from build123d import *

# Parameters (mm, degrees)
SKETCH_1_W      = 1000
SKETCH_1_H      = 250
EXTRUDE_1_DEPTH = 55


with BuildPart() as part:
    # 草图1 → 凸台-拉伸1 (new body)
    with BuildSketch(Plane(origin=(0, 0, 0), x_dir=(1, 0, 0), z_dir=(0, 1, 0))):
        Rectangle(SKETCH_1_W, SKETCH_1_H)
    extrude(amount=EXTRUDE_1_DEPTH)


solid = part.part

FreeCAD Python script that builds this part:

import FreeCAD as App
import Part
import Sketcher


def add_polygon(sketch, points):
    """Adds a closed chain of lines whose ends are joined by coincident constraints."""
    first, n = sketch.GeometryCount, len(points)
    for a, b in zip(points, points[1:] + points[:1]):
        sketch.addGeometry(Part.LineSegment(App.Vector(*a, 0), App.Vector(*b, 0)), False)
    for i in range(n):
        sketch.addConstraint(Sketcher.Constraint("Coincident", first + i, 2, first + (i + 1) % n, 1))

doc = App.newDocument("Part")
body = doc.addObject("PartDesign::Body", "Body")

sketch1 = body.newObject("Sketcher::SketchObject", "Sketch")
sketch1.AttachmentSupport = (doc.getObject("XZ_Plane"), [""])
sketch1.MapMode = "FlatFace"
add_polygon(sketch1, [(-500, -125), (-500, 125), (500, 125), (500, -125)])
sketch1.addConstraint([
    Sketcher.Constraint("Vertical", 0),
    Sketcher.Constraint("Horizontal", 1),
    Sketcher.Constraint("Vertical", 2),
    Sketcher.Constraint("Horizontal", 3),
    Sketcher.Constraint("Symmetric", 0, 2, 2, 2, -1, 1),
    Sketcher.Constraint("DistanceX", 1, 1, 1, 2, 1000.0),
    Sketcher.Constraint("DistanceY", 0, 1, 0, 2, 250.0),
])
pad1 = body.newObject("PartDesign::Pad", "Pad")
pad1.Profile = sketch1
pad1.Length = 55
pad1.Reversed = True

doc.recompute()
